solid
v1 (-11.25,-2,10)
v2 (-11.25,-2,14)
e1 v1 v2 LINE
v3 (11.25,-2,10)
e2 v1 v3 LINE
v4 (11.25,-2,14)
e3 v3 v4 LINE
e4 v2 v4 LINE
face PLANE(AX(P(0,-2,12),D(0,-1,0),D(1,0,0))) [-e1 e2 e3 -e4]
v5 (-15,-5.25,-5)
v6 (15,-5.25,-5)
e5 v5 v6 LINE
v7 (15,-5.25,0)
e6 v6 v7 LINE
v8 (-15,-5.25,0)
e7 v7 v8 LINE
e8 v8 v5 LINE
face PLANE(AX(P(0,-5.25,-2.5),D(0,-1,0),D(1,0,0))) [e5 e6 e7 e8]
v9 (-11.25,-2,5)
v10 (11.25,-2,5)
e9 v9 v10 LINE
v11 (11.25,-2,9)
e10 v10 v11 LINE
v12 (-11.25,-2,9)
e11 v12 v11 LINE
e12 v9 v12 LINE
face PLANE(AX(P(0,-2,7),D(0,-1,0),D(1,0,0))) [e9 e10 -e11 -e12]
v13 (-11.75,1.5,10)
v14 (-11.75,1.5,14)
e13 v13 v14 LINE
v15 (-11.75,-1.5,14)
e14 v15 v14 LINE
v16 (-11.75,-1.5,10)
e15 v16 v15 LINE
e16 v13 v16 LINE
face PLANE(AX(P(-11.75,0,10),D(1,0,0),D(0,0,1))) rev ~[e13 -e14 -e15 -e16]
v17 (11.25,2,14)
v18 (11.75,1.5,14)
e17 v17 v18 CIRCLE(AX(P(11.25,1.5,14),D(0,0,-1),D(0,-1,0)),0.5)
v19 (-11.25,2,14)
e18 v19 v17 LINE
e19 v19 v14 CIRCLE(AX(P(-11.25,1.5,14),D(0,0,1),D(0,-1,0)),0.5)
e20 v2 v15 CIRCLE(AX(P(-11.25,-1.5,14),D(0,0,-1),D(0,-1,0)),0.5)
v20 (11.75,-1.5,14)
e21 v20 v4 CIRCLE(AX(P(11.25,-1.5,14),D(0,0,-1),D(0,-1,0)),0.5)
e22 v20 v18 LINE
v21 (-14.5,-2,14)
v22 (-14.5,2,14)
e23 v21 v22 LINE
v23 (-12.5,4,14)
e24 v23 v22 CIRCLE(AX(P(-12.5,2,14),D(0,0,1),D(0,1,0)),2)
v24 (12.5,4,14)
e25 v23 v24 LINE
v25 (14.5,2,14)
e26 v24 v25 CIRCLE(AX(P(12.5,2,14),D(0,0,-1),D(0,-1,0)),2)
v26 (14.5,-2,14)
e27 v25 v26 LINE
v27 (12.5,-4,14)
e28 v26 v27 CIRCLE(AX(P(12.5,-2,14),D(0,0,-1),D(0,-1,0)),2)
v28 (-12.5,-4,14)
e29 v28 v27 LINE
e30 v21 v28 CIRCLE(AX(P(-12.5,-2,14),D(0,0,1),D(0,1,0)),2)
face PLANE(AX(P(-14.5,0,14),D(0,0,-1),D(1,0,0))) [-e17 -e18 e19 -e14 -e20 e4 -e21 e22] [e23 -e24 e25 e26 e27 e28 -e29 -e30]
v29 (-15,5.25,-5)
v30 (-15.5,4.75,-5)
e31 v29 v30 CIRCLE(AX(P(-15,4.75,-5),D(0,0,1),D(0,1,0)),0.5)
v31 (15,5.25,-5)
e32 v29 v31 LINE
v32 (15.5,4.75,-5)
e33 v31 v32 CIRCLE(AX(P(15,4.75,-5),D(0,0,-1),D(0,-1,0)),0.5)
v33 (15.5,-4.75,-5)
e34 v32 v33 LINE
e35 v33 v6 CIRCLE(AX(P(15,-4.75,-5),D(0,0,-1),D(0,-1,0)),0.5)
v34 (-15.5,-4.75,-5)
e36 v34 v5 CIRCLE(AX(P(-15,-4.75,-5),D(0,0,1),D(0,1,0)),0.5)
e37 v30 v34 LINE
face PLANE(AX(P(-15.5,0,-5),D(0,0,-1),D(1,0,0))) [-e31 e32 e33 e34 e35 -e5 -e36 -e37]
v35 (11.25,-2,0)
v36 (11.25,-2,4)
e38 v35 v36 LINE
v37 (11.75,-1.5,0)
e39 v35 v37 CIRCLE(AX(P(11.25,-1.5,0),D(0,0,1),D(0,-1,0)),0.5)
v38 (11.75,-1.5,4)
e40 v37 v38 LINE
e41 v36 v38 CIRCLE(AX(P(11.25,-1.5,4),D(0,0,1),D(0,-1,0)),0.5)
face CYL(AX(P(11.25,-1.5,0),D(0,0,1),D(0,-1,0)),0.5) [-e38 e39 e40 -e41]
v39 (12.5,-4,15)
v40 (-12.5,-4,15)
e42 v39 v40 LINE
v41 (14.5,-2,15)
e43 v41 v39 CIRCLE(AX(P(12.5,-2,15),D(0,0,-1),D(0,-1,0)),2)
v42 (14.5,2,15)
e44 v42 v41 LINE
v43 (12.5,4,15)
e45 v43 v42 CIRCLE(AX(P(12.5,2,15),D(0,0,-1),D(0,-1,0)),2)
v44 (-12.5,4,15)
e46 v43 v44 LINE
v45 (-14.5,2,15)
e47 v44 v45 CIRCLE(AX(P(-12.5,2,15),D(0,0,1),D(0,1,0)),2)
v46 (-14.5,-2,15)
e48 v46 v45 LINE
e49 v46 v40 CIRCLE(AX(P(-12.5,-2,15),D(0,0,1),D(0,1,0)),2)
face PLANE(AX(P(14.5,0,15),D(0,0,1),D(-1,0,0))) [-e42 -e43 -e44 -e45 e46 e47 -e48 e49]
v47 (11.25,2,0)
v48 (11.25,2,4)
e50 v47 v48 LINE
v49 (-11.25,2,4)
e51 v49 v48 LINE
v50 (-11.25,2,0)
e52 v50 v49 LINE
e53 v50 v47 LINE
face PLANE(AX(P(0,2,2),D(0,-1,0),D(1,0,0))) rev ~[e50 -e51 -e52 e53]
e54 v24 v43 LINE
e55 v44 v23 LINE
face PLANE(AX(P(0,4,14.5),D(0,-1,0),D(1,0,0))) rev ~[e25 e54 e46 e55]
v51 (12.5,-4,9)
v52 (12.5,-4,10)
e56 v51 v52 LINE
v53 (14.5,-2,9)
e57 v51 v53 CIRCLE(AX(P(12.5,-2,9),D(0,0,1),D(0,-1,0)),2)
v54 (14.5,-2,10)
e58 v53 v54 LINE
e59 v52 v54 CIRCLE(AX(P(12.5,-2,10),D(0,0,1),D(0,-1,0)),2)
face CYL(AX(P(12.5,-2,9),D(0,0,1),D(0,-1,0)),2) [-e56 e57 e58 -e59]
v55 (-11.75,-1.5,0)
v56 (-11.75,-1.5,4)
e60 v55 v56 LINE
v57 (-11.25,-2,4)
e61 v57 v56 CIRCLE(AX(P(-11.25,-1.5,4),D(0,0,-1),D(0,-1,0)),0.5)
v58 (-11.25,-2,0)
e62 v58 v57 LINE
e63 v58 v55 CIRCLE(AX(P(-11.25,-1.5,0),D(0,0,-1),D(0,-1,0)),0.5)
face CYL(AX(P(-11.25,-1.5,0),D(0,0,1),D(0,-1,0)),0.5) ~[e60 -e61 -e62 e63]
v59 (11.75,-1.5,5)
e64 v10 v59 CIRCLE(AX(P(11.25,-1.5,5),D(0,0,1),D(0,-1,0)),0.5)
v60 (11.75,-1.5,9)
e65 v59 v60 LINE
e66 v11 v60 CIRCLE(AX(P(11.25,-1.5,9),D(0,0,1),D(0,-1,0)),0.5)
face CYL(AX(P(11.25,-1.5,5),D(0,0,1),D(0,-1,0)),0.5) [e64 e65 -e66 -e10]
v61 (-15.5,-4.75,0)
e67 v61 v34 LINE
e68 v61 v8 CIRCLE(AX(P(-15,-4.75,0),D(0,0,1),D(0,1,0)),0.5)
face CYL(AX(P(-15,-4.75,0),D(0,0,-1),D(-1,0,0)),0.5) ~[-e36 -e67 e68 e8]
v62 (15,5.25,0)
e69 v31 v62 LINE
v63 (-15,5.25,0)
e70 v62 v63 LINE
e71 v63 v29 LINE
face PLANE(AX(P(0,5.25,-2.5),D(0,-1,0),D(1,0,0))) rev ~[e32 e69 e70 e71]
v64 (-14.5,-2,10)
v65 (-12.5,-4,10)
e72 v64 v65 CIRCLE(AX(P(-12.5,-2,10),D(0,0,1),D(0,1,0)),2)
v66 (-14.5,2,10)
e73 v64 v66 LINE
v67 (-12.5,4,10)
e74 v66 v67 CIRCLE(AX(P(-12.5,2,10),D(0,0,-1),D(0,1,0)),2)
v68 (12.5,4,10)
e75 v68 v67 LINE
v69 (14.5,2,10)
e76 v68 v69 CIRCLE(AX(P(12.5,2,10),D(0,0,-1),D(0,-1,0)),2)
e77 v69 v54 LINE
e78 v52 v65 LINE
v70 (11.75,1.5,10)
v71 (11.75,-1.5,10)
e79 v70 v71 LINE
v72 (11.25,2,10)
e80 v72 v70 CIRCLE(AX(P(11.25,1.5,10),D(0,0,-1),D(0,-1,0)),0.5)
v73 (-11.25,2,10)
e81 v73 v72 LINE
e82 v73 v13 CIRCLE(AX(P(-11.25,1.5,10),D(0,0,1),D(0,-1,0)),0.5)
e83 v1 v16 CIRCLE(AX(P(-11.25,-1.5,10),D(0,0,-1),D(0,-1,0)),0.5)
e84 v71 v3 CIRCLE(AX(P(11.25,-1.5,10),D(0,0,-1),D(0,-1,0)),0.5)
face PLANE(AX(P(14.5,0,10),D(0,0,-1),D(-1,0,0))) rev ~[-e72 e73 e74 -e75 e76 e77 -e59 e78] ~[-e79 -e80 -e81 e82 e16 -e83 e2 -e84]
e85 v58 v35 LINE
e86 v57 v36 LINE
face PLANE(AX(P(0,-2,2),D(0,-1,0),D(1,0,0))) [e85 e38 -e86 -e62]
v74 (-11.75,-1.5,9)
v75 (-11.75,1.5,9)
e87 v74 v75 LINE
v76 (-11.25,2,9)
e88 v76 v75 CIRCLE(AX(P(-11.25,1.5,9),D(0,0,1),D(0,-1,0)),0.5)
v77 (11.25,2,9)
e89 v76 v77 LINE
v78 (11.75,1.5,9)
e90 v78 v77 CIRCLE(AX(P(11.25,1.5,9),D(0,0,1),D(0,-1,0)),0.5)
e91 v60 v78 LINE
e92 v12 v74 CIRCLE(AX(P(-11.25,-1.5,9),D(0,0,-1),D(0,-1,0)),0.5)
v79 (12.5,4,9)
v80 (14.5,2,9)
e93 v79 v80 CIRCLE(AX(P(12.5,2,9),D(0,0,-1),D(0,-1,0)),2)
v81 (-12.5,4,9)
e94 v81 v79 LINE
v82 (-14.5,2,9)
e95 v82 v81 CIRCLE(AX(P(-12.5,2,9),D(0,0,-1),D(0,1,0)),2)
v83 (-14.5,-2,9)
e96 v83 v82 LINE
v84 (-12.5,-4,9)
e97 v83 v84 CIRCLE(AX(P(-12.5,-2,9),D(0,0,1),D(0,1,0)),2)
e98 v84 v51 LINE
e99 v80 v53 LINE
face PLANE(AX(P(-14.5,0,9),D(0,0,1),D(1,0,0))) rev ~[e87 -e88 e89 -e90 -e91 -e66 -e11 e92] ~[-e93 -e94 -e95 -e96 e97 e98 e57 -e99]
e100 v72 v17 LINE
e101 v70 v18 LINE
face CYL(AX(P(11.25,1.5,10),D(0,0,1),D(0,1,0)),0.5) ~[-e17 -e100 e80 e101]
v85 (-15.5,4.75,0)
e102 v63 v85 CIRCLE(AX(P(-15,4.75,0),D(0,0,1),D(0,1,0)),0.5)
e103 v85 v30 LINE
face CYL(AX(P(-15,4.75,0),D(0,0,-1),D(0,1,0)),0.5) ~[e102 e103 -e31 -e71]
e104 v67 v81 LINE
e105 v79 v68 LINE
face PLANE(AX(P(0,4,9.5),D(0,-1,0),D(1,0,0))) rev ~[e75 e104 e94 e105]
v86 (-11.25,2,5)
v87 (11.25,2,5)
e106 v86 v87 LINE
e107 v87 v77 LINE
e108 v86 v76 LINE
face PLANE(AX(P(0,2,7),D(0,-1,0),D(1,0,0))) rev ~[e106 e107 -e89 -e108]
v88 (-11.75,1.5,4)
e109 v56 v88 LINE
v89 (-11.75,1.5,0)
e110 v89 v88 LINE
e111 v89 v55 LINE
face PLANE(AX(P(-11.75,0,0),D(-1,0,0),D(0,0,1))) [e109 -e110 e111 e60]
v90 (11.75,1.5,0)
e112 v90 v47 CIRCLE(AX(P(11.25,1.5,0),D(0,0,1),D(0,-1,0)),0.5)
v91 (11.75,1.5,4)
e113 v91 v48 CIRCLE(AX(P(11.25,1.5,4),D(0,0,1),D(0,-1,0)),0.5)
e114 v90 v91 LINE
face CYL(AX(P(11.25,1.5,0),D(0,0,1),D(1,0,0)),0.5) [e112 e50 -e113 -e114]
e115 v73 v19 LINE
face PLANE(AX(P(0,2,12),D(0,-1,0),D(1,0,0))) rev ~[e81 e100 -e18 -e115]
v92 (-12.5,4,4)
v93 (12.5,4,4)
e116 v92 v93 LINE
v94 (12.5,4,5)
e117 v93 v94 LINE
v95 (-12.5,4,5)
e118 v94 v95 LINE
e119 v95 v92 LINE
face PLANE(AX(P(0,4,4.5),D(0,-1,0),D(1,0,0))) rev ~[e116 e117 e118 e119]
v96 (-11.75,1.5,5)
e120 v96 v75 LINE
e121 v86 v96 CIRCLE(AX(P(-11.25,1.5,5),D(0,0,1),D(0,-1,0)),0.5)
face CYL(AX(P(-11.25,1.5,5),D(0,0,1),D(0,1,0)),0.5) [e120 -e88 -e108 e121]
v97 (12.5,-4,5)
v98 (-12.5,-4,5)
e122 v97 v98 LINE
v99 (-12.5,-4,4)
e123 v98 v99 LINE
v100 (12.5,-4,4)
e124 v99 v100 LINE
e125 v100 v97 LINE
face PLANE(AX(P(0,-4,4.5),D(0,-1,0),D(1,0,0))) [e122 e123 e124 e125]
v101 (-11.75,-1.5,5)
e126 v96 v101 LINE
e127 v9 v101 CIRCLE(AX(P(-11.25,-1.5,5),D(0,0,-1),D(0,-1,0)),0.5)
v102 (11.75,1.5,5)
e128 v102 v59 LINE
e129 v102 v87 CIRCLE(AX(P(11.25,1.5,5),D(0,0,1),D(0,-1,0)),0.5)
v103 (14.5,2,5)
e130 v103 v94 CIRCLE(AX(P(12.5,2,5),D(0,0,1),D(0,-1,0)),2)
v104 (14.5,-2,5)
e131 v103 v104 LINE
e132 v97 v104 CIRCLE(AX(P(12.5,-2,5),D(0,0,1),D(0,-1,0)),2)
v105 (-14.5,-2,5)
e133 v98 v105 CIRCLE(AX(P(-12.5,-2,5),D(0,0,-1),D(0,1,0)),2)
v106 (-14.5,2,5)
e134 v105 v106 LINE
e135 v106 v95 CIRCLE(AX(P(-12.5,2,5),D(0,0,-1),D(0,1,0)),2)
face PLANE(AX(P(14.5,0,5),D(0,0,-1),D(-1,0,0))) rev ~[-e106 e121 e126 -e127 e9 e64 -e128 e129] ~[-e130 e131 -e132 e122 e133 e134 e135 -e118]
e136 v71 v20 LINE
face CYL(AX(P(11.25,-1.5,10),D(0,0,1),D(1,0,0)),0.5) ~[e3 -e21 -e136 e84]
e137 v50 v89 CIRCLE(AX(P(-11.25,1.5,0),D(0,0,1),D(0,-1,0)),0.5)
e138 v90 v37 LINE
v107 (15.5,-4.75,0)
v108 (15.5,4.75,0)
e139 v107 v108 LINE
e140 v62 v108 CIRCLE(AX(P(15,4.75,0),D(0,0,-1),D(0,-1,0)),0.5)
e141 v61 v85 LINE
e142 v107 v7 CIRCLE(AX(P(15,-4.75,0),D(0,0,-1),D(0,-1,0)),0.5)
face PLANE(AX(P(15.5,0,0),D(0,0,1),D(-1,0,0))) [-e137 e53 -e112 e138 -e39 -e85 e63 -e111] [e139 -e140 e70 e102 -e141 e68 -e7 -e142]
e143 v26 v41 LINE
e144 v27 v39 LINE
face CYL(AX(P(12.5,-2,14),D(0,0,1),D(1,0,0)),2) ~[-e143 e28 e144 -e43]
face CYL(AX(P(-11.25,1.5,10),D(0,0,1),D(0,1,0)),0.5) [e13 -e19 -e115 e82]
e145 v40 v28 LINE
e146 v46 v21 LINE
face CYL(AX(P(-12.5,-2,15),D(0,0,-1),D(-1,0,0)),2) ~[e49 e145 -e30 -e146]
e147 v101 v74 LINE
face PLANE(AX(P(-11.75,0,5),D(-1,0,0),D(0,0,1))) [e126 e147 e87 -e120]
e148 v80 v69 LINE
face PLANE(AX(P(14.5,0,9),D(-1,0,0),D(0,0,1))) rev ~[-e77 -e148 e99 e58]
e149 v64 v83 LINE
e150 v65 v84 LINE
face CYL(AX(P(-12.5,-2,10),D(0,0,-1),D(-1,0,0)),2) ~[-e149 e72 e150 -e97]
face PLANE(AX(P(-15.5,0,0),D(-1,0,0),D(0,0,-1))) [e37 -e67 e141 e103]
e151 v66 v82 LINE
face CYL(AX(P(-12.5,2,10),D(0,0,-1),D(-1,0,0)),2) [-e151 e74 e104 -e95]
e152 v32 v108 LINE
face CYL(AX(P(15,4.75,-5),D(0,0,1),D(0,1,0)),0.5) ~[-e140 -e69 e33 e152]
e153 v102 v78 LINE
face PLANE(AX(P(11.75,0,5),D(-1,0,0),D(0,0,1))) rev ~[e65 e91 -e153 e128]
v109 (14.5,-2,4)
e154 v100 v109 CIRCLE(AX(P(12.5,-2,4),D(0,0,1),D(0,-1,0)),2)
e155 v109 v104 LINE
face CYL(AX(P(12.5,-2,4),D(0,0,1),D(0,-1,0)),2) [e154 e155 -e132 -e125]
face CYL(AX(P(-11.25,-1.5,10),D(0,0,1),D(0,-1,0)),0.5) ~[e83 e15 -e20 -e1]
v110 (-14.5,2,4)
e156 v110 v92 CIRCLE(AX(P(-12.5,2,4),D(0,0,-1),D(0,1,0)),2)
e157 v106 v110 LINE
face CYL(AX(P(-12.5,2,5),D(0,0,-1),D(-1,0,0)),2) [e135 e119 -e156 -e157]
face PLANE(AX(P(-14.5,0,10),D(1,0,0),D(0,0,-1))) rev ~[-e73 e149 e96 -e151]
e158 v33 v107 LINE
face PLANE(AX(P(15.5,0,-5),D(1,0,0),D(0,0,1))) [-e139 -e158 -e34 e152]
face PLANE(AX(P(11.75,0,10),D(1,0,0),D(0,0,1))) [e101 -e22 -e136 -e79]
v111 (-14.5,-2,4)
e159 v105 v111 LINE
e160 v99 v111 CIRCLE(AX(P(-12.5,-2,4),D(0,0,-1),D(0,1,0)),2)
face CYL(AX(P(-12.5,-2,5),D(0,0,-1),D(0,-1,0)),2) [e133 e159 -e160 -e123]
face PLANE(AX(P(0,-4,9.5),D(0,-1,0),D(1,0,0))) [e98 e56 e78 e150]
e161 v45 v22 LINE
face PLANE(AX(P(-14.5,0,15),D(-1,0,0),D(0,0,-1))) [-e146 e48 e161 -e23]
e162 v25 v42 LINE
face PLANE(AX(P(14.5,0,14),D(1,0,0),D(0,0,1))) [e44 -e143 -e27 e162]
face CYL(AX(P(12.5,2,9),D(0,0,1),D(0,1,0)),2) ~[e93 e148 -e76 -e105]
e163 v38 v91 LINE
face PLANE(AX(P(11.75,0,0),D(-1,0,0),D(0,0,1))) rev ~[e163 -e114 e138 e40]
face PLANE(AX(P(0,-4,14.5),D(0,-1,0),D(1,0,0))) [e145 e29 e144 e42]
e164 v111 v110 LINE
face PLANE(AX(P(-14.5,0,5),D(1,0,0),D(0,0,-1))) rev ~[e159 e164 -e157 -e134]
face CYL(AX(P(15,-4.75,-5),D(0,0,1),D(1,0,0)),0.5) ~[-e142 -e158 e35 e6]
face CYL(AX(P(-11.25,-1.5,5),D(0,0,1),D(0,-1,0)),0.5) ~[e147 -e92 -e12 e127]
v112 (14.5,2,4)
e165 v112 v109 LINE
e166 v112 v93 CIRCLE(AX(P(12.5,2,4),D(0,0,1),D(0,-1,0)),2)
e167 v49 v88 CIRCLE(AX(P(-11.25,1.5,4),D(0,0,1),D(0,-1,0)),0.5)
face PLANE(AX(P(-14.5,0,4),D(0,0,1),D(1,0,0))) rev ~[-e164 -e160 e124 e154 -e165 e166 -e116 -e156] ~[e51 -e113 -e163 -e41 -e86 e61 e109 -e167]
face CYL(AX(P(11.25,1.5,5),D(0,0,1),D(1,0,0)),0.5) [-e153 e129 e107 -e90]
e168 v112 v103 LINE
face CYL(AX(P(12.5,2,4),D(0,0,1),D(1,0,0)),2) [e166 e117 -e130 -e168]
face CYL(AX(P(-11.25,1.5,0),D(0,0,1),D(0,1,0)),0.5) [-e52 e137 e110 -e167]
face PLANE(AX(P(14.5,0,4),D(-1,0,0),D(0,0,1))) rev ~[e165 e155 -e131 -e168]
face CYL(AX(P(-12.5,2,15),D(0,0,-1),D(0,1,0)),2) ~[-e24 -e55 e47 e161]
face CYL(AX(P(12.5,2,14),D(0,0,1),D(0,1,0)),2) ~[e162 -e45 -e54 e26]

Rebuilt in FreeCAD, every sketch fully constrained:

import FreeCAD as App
import Part
import Sketcher


def edges_at(feature, points):
    """Names of the edges that pass closest to the given points."""
    edges = feature.Shape.Edges
    near = lambda p: min(range(len(edges)), key=lambda i: edges[i].distToShape(Part.Vertex(*p))[0])
    return sorted({f"Edge{near(p) + 1}" for p in points})

doc = App.newDocument("Part")
body = doc.addObject("PartDesign::Body", "Body")

sketch1 = doc.addObject("Sketcher::SketchObject", "Sketch")
body.addObject(sketch1)
sketch1.AttachmentSupport = (doc.XZ_Plane, [""])
sketch1.MapMode = "FlatFace"
sketch1.addGeometry([
    Part.LineSegment(App.Vector(-16, 0, 0), App.Vector(-16, -5, 0)),
    Part.LineSegment(App.Vector(-16, -5, 0), App.Vector(16, -5, 0)),
    Part.LineSegment(App.Vector(16, -5, 0), App.Vector(16, 0, 0)),
    Part.LineSegment(App.Vector(16, 0, 0), App.Vector(-16, 0, 0)),
], False)
sketch1.addConstraint([
    Sketcher.Constraint("Coincident", 0, 2, 1, 1),
    Sketcher.Constraint("Coincident", 1, 2, 2, 1),
    Sketcher.Constraint("Coincident", 2, 2, 3, 1),
    Sketcher.Constraint("Coincident", 3, 2, 0, 1),
    Sketcher.Constraint("Vertical", 0),
    Sketcher.Constraint("Horizontal", 1),
    Sketcher.Constraint("Vertical", 2),
    Sketcher.Constraint("Horizontal", 3),
    Sketcher.Constraint("Symmetric", 2, 2, 3, 2, -1, 1),
    Sketcher.Constraint("DistanceX", 1, 1, 1, 2, 31.0),
    Sketcher.Constraint("DistanceY", 0, 2, 0, 1, 5.0),
])
pad1 = doc.addObject("PartDesign::Pad", "Pad")
body.addObject(pad1)
pad1.Profile = sketch1
pad1.Length = 10.5
pad1.Midplane = True
body2 = doc.addObject("PartDesign::Body", "Body001")
body2.AllowCompound = True

sketch2 = doc.addObject("Sketcher::SketchObject", "Sketch001")
body2.addObject(sketch2)
sketch2.AttachmentSupport = (doc.getObject("XZ_Plane001"), [""])
sketch2.MapMode = "FlatFace"
sketch2.addGeometry([
    Part.LineSegment(App.Vector(-14.5, 4, 0), App.Vector(14.5, 4, 0)),
    Part.LineSegment(App.Vector(14.5, 4, 0), App.Vector(14.5, 5, 0)),
    Part.LineSegment(App.Vector(14.5, 5, 0), App.Vector(-14.5, 5, 0)),
    Part.LineSegment(App.Vector(-14.5, 5, 0), App.Vector(-14.5, 4, 0)),
    Part.LineSegment(App.Vector(-14.5, 9, 0), App.Vector(14.5, 9, 0)),
    Part.LineSegment(App.Vector(14.5, 9, 0), App.Vector(14.5, 10, 0)),
    Part.LineSegment(App.Vector(14.5, 10, 0), App.Vector(-14.5, 10, 0)),
    Part.LineSegment(App.Vector(-14.5, 10, 0), App.Vector(-14.5, 9, 0)),
    Part.LineSegment(App.Vector(-14.5, 14, 0), App.Vector(14.5, 14, 0)),
    Part.LineSegment(App.Vector(14.5, 14, 0), App.Vector(14.5, 15, 0)),
    Part.LineSegment(App.Vector(14.5, 15, 0), App.Vector(-14.5, 15, 0)),
    Part.LineSegment(App.Vector(-14.5, 15, 0), App.Vector(-14.5, 14, 0)),
], False)
sketch2.addConstraint([
    Sketcher.Constraint("Coincident", 0, 2, 1, 1),
    Sketcher.Constraint("Coincident", 1, 2, 2, 1),
    Sketcher.Constraint("Coincident", 2, 2, 3, 1),
    Sketcher.Constraint("Coincident", 3, 2, 0, 1),
    Sketcher.Constraint("Coincident", 4, 2, 5, 1),
    Sketcher.Constraint("Coincident", 5, 2, 6, 1),
    Sketcher.Constraint("Coincident", 6, 2, 7, 1),
    Sketcher.Constraint("Coincident", 7, 2, 4, 1),
    Sketcher.Constraint("Coincident", 8, 2, 9, 1),
    Sketcher.Constraint("Coincident", 9, 2, 10, 1),
    Sketcher.Constraint("Coincident", 10, 2, 11, 1),
    Sketcher.Constraint("Coincident", 11, 2, 8, 1),
    Sketcher.Constraint("Horizontal", 0),
    Sketcher.Constraint("Vertical", 1),
    Sketcher.Constraint("Horizontal", 2),
    Sketcher.Constraint("Vertical", 3),
    Sketcher.Constraint("Horizontal", 4),
    Sketcher.Constraint("Vertical", 5),
    Sketcher.Constraint("Horizontal", 6),
    Sketcher.Constraint("Vertical", 7),
    Sketcher.Constraint("Horizontal", 8),
    Sketcher.Constraint("Vertical", 9),
    Sketcher.Constraint("Horizontal", 10),
    Sketcher.Constraint("Vertical", 11),
    Sketcher.Constraint("Vertical", 1, 2, 4, 2),
    Sketcher.Constraint("Vertical", 3, 2, 6, 2),
    Sketcher.Constraint("Vertical", 5, 2, 8, 2),
    Sketcher.Constraint("Vertical", 7, 2, 10, 2),
    Sketcher.Constraint("Equal", 3, 5),
    Sketcher.Constraint("Equal", 7, 9),
    Sketcher.Constraint("DistanceX", 0, 1, 0, 2, 29.0),
    Sketcher.Constraint("DistanceY", 1, 1, 1, 2, 1.0),
    Sketcher.Constraint("DistanceY", -1, 1, 0, 2, 4.0),
    Sketcher.Constraint("DistanceY", -1, 1, 4, 2, 9.0),
    Sketcher.Constraint("DistanceY", -1, 1, 8, 2, 14.0),
    Sketcher.Constraint("DistanceX", -1, 1, 0, 2, 14.5),
])
pad2 = doc.addObject("PartDesign::Pad", "Pad001")
body2.addObject(pad2)
pad2.Profile = sketch2
pad2.Length = 8
pad2.Midplane = True
body.AllowCompound = True
doc.recompute()

boolean = doc.addObject("PartDesign::Boolean", "Boolean")
body.addObject(boolean)
boolean.Type = "Fuse"
boolean.addObjects([body2])

sketch3 = doc.addObject("Sketcher::SketchObject", "Sketch002")
body.addObject(sketch3)
sketch3.AttachmentSupport = (doc.XZ_Plane, [""])
sketch3.MapMode = "FlatFace"
sketch3.addGeometry([
    Part.LineSegment(App.Vector(-11.8, 4, 0), App.Vector(-11.8, 0, 0)),
    Part.LineSegment(App.Vector(-11.8, 0, 0), App.Vector(11.8, 0, 0)),
    Part.LineSegment(App.Vector(11.8, 0, 0), App.Vector(11.8, 4, 0)),
    Part.LineSegment(App.Vector(11.8, 4, 0), App.Vector(-11.8, 4, 0)),
    Part.LineSegment(App.Vector(-11.8, 9, 0), App.Vector(-11.8, 5, 0)),
    Part.LineSegment(App.Vector(-11.8, 5, 0), App.Vector(11.8, 5, 0)),
    Part.LineSegment(App.Vector(11.8, 5, 0), App.Vector(11.8, 9, 0)),
    Part.LineSegment(App.Vector(11.8, 9, 0), App.Vector(-11.8, 9, 0)),
    Part.LineSegment(App.Vector(-11.8, 14, 0), App.Vector(-11.8, 10, 0)),
    Part.LineSegment(App.Vector(-11.8, 10, 0), App.Vector(11.8, 10, 0)),
    Part.LineSegment(App.Vector(11.8, 10, 0), App.Vector(11.8, 14, 0)),
    Part.LineSegment(App.Vector(11.8, 14, 0), App.Vector(-11.8, 14, 0)),
], False)
sketch3.addConstraint([
    Sketcher.Constraint("Coincident", 0, 2, 1, 1),
    Sketcher.Constraint("Coincident", 1, 2, 2, 1),
    Sketcher.Constraint("Coincident", 2, 2, 3, 1),
    Sketcher.Constraint("Coincident", 3, 2, 0, 1),
    Sketcher.Constraint("Coincident", 4, 2, 5, 1),
    Sketcher.Constraint("Coincident", 5, 2, 6, 1),
    Sketcher.Constraint("Coincident", 6, 2, 7, 1),
    Sketcher.Constraint("Coincident", 7, 2, 4, 1),
    Sketcher.Constraint("Coincident", 8, 2, 9, 1),
    Sketcher.Constraint("Coincident", 9, 2, 10, 1),
    Sketcher.Constraint("Coincident", 10, 2, 11, 1),
    Sketcher.Constraint("Coincident", 11, 2, 8, 1),
    Sketcher.Constraint("Vertical", 0),
    Sketcher.Constraint("Horizontal", 1),
    Sketcher.Constraint("Vertical", 2),
    Sketcher.Constraint("Horizontal", 3),
    Sketcher.Constraint("Vertical", 4),
    Sketcher.Constraint("Horizontal", 5),
    Sketcher.Constraint("Vertical", 6),
    Sketcher.Constraint("Horizontal", 7),
    Sketcher.Constraint("Vertical", 8),
    Sketcher.Constraint("Horizontal", 9),
    Sketcher.Constraint("Vertical", 10),
    Sketcher.Constraint("Horizontal", 11),
    Sketcher.Constraint("Symmetric", 0, 2, 1, 2, -1, 1),
    Sketcher.Constraint("Vertical", 3, 2, 4, 2),
    Sketcher.Constraint("Vertical", 2, 2, 5, 2),
    Sketcher.Constraint("Vertical", 7, 2, 8, 2),
    Sketcher.Constraint("Vertical", 6, 2, 9, 2),
    Sketcher.Constraint("Equal", 2, 4),
    Sketcher.Constraint("Equal", 6, 8),
    Sketcher.Constraint("DistanceY", 0, 2, 0, 1, 4.0),
    Sketcher.Constraint("DistanceX", 1, 1, 1, 2, 23.5),
    Sketcher.Constraint("DistanceY", -1, 1, 4, 2, 5.0),
    Sketcher.Constraint("DistanceY", -1, 1, 8, 2, 10.0),
])
pad3 = doc.addObject("PartDesign::Pad", "Pad002")
body.addObject(pad3)
pad3.Profile = sketch3
pad3.Length = 4
pad3.Midplane = True
doc.recompute()

fillet = doc.addObject("PartDesign::Fillet", "Fillet")
body.addObject(fillet)
fillet.Base = (pad3, edges_at(pad3, [
    (15.5, -5.25, -2.5),
    (15.5, 5.25, -2.5),
    (-15.5, -5.25, -2.5),
    (-11.75, -2, 2),
    (-11.75, -2, 7),
    (-11.75, -2, 12),
    (11.75, -2, 2),
    (11.75, -2, 7),
    (11.75, -2, 12),
    (11.75, 2, 2),
    (11.75, 2, 7),
    (11.75, 2, 12),
    (-15.5, 5.25, -2.5),
    (-11.75, 2, 2),
    (-11.75, 2, 7),
    (-11.75, 2, 12),
]))
fillet.Radius = 0.5
doc.recompute()

fillet2 = doc.addObject("PartDesign::Fillet", "Fillet001")
body.addObject(fillet2)
fillet2.Base = (fillet, edges_at(fillet, [
    (-14.5, 4, 4.5),
    (-14.5, 4, 9.5),
    (-14.5, 4, 14.5),
    (-14.5, -4, 14.5),
    (-14.5, -4, 9.5),
    (-14.5, -4, 4.5),
    (14.5, -4, 14.5),
    (14.5, -4, 9.5),
    (14.5, -4, 4.5),
    (14.5, 4, 4.5),
    (14.5, 4, 9.5),
    (14.5, 4, 14.5),
]))
fillet2.Radius = 2

doc.recompute()
